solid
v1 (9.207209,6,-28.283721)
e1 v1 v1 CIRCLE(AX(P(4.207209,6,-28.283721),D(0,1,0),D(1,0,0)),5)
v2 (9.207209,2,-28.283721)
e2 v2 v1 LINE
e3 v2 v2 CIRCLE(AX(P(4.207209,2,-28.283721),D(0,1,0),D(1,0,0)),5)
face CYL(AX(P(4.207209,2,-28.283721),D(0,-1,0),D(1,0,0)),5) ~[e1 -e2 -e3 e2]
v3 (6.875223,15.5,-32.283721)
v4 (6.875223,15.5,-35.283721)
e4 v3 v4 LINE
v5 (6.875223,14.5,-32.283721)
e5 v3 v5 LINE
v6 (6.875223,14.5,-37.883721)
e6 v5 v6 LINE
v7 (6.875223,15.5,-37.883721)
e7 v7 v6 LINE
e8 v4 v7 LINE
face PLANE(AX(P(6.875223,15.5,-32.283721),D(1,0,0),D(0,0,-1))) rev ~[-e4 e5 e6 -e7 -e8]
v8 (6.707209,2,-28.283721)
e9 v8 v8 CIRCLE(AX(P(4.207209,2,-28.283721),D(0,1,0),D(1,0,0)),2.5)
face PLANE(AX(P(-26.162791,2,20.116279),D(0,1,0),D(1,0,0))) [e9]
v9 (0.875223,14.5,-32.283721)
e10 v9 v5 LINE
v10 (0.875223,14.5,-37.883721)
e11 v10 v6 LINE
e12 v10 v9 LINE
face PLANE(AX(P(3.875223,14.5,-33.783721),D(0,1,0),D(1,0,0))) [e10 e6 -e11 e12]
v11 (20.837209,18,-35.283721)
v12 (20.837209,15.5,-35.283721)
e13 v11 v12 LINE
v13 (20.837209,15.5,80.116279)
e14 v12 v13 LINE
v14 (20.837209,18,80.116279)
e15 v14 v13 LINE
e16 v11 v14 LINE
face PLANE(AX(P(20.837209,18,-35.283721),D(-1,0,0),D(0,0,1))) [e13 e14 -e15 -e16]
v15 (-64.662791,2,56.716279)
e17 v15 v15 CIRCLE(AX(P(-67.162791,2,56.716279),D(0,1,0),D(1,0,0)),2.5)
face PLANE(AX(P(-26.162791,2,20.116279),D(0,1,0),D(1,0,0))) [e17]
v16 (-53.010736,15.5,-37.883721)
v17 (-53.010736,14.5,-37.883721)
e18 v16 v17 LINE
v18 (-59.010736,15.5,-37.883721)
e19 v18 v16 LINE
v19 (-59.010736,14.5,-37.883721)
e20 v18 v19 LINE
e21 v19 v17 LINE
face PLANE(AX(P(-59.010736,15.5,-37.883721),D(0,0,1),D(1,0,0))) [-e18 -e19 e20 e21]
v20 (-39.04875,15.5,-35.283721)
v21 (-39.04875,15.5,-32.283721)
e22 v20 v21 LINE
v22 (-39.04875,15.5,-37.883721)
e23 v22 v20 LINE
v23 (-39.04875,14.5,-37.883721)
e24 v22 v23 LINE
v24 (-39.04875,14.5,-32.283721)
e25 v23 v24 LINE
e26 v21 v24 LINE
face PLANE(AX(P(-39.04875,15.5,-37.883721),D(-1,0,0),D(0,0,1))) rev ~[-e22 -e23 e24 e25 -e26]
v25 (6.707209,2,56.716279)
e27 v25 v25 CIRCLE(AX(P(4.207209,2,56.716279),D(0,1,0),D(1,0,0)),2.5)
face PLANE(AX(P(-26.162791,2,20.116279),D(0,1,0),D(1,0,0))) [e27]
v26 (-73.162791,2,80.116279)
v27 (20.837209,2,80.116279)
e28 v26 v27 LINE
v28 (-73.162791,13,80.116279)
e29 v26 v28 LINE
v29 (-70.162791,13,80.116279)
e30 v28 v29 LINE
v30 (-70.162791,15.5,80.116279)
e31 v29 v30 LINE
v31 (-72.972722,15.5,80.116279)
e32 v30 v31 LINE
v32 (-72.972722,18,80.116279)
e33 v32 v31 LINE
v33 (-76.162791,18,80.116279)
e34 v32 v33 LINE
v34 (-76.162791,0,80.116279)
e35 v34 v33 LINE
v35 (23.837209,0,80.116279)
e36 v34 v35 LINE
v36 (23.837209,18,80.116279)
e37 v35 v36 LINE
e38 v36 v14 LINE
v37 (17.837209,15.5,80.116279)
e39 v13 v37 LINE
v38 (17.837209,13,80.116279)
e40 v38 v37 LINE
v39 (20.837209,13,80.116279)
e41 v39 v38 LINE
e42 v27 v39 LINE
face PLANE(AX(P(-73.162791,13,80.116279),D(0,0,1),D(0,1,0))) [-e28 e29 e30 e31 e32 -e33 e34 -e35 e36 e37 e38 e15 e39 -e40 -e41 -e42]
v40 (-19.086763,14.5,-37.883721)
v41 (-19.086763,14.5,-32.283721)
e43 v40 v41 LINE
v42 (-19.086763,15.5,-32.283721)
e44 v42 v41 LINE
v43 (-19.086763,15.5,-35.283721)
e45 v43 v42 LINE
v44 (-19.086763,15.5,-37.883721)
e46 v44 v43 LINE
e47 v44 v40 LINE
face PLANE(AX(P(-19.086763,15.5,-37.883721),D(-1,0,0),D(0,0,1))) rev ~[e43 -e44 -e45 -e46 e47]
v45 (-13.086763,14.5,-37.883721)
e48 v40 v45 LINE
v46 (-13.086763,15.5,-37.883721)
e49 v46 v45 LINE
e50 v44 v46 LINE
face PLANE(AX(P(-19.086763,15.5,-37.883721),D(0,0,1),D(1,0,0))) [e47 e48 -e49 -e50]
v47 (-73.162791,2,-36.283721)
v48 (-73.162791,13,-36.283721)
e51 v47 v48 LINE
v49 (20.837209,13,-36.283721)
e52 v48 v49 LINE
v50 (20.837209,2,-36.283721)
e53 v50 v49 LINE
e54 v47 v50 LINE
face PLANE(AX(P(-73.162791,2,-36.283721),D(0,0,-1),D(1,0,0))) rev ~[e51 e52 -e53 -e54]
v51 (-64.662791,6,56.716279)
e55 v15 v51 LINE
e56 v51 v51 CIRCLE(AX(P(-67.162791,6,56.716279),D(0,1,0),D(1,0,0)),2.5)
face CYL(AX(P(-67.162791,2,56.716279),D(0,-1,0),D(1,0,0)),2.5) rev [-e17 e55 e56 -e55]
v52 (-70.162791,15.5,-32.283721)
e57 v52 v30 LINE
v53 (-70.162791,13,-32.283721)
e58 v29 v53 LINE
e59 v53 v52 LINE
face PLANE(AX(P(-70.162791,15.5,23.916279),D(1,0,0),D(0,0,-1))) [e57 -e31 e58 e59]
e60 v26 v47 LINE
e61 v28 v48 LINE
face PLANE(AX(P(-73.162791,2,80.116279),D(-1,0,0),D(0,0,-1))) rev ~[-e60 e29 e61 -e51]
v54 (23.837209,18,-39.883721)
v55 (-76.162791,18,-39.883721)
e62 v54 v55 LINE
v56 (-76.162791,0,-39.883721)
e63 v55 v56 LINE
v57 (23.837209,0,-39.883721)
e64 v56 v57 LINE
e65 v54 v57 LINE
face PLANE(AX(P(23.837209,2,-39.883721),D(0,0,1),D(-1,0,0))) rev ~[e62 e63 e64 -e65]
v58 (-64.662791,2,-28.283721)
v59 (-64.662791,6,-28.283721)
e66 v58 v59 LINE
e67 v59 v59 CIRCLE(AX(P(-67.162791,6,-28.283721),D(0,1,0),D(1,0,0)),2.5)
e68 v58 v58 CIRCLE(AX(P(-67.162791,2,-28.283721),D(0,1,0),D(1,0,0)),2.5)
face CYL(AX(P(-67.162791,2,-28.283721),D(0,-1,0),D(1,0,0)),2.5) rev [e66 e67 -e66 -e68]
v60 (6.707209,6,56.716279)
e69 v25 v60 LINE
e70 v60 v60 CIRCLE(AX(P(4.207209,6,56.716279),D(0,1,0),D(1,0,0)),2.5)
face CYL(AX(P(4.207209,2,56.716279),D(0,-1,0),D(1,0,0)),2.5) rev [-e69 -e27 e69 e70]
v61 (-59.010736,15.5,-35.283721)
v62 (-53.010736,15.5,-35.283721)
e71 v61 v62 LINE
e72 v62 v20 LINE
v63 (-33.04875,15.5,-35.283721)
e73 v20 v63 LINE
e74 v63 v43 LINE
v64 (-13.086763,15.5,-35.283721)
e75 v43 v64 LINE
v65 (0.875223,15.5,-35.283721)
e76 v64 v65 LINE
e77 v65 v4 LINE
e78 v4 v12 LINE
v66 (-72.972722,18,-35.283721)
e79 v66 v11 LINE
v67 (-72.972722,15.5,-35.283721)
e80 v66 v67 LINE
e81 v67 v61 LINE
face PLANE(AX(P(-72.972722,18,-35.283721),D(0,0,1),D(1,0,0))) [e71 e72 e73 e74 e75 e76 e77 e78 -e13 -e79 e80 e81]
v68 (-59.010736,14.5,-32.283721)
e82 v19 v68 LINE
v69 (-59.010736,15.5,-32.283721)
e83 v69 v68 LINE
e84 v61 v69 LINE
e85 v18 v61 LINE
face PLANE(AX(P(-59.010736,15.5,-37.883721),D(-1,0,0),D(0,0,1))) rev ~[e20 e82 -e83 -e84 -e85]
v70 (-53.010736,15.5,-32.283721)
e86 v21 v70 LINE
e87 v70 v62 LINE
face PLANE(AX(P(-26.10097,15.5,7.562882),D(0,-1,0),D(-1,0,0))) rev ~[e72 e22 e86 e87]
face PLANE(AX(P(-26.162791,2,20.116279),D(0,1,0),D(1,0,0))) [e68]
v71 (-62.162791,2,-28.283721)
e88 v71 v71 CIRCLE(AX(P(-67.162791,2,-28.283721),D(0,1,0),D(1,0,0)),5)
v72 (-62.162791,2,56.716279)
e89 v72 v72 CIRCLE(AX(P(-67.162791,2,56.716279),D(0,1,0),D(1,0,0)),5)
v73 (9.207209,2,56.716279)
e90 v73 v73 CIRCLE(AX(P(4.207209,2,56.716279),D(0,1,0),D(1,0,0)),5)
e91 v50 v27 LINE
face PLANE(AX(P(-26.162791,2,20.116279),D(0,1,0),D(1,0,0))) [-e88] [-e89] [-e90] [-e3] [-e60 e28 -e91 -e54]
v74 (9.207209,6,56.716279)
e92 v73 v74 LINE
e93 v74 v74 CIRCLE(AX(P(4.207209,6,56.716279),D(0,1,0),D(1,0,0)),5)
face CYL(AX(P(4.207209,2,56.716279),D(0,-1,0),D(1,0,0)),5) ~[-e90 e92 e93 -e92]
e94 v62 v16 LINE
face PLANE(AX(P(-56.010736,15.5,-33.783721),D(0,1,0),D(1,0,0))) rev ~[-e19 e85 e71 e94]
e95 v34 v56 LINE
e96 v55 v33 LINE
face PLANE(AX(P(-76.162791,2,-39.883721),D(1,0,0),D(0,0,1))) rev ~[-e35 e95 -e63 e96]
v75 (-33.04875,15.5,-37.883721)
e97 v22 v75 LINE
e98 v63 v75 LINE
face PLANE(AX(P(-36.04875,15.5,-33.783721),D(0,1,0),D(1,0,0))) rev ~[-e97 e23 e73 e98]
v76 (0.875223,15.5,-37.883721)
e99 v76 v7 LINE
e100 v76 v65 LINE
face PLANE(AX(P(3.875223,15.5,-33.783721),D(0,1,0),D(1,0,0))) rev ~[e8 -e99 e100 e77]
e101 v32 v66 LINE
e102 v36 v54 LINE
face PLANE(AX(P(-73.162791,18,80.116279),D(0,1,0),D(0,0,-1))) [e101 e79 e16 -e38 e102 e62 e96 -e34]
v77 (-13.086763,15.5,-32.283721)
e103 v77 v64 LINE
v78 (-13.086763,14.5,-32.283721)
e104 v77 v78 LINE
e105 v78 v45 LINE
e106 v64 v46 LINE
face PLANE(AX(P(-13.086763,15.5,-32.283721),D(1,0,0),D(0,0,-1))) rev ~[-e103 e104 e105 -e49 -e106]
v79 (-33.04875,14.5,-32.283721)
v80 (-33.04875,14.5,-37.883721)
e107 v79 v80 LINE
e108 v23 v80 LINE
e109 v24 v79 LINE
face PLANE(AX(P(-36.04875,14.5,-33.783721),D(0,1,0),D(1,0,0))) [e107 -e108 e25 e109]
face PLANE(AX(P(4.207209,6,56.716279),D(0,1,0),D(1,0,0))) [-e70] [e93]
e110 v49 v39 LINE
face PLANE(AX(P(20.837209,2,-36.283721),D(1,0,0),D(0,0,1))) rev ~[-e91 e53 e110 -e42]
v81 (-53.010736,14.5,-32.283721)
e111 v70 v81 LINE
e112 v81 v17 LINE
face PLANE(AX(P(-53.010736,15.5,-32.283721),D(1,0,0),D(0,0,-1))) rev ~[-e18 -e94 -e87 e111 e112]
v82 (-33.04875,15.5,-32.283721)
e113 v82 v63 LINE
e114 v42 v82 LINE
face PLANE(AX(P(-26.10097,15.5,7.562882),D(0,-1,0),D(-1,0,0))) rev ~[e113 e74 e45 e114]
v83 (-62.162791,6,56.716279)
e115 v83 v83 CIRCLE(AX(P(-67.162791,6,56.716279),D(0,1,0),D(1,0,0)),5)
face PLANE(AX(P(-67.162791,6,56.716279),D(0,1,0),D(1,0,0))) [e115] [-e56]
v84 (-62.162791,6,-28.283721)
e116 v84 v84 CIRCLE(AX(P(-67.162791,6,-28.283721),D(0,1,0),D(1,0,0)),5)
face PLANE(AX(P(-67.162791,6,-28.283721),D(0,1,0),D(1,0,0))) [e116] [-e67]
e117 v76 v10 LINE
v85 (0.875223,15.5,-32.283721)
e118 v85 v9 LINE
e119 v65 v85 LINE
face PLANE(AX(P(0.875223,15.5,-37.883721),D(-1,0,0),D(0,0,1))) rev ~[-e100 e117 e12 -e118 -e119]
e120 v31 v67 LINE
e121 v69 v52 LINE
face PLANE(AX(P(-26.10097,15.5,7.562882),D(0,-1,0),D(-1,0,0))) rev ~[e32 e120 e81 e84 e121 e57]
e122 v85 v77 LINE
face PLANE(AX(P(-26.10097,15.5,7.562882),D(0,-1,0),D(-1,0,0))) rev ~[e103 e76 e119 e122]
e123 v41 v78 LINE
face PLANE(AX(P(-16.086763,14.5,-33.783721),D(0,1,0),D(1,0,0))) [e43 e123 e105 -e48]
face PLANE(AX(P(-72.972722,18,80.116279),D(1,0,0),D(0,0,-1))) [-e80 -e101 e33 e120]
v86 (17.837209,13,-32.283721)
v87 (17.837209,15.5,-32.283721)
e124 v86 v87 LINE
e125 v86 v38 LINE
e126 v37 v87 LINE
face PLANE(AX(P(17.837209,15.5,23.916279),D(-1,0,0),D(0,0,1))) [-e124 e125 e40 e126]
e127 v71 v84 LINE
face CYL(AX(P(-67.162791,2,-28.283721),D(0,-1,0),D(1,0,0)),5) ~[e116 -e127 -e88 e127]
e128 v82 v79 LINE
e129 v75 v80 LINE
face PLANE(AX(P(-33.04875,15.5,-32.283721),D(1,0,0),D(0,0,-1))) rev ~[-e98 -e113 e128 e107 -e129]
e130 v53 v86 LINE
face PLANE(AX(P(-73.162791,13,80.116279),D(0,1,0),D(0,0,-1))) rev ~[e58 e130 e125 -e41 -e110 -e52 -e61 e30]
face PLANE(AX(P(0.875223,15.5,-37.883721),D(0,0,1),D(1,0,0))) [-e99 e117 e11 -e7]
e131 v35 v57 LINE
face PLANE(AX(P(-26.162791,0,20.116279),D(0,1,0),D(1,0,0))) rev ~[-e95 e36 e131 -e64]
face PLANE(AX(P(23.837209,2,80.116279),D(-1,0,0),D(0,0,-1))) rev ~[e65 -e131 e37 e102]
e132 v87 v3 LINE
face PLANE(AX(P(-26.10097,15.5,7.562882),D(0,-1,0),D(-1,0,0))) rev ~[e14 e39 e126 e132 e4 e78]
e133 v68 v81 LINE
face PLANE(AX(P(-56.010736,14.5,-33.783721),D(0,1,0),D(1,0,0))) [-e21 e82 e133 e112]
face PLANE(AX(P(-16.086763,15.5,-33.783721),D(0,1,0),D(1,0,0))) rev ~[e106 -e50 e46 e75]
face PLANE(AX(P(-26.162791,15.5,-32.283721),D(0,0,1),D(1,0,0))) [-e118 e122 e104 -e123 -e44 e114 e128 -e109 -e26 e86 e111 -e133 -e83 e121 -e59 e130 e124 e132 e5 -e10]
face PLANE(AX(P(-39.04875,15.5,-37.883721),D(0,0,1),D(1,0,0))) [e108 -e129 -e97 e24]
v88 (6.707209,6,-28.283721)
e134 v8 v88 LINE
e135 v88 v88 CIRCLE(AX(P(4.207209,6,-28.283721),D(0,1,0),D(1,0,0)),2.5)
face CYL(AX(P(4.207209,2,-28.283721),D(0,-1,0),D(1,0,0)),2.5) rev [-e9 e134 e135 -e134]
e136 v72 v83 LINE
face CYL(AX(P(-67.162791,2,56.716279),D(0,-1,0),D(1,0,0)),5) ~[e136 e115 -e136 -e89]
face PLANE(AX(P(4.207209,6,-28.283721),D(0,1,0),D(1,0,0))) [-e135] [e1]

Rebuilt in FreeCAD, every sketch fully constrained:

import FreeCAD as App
import Part
import Sketcher
Q = App.Units.Quantity


def add_polygon(sketch, points):
    """Adds a closed chain of lines whose ends are joined by coincident constraints."""
    first, n = sketch.GeometryCount, len(points)
    for a, b in zip(points, points[1:] + points[:1]):
        sketch.addGeometry(Part.LineSegment(App.Vector(*a, 0), App.Vector(*b, 0)), False)
    for i in range(n):
        sketch.addConstraint(Sketcher.Constraint("Coincident", first + i, 2, first + (i + 1) % n, 1))

doc = App.newDocument("Part")
body = doc.addObject("PartDesign::Body", "Body")

# Sketch on XZ plane
sketch1 = body.newObject("Sketcher::SketchObject", "Sketch")
sketch1.AttachmentSupport = (doc.getObject("XZ_Plane"), [""])
sketch1.MapMode = "FlatFace"
add_polygon(sketch1, [(-76, -40), (-76, 80), (24, 80), (24, -40)])  # lines 0-3
sketch1.addConstraint([
    Sketcher.Constraint("Vertical", 0),
    Sketcher.Constraint("Horizontal", 1),
    Sketcher.Constraint("Vertical", 2),
    Sketcher.Constraint("Horizontal", 3),
    Sketcher.Constraint("DistanceX", 1, 1, 1, 2, Q("100 mm")),
    Sketcher.Constraint("DistanceY", 0, 1, 0, 2, Q("120 mm")),
    Sketcher.Constraint("DistanceX", 0, 2, -1, 1, Q("76.162791 mm")),
    Sketcher.Constraint("DistanceY", -1, 1, 0, 2, Q("80.116279 mm")),
])
pad1 = body.newObject("PartDesign::Pad", "Pad")
pad1.Profile = sketch1
pad1.Length = 2
pad1.Reversed = True

# Sketch on XZ plane
sketch2 = body.newObject("Sketcher::SketchObject", "Sketch001")
sketch2.AttachmentSupport = (doc.getObject("XZ_Plane"), [""])
sketch2.MapMode = "FlatFace"
sketch2.AttachmentOffset = App.Placement(App.Vector(0, 0, -2), App.Rotation())
sketch2.addGeometry([
    Part.Circle(App.Vector(-67.2, -28.3, 0), App.Vector(0, 0, 1), 5),  # 0
    Part.Circle(App.Vector(-67.2, -28.3, 0), App.Vector(0, 0, 1), 2.5),  # 1
    Part.Circle(App.Vector(4.2, -28.3, 0), App.Vector(0, 0, 1), 5),  # 2
    Part.Circle(App.Vector(4.2, -28.3, 0), App.Vector(0, 0, 1), 2.5),  # 3
    Part.Circle(App.Vector(4.2, 56.7, 0), App.Vector(0, 0, 1), 5),  # 4
    Part.Circle(App.Vector(4.2, 56.7, 0), App.Vector(0, 0, 1), 2.5),  # 5
    Part.Circle(App.Vector(-67.2, 56.7, 0), App.Vector(0, 0, 1), 5),  # 6
    Part.Circle(App.Vector(-67.2, 56.7, 0), App.Vector(0, 0, 1), 2.5),  # 7
], False)
sketch2.addConstraint([
    Sketcher.Constraint("Coincident", 1, 3, 0, 3),
    Sketcher.Constraint("Coincident", 3, 3, 2, 3),
    Sketcher.Constraint("Coincident", 5, 3, 4, 3),
    Sketcher.Constraint("Coincident", 7, 3, 6, 3),
    Sketcher.Constraint("Equal", 0, 2),
    Sketcher.Constraint("Equal", 1, 3),
    Sketcher.Constraint("Equal", 2, 4),
    Sketcher.Constraint("Equal", 3, 5),
    Sketcher.Constraint("Equal", 4, 6),
    Sketcher.Constraint("Equal", 5, 7),
    Sketcher.Constraint("Horizontal", 1, 3, 2, 3),
    Sketcher.Constraint("Horizontal", 5, 3, 6, 3),
    Sketcher.Constraint("Vertical", 3, 3, 4, 3),
    Sketcher.Constraint("Vertical", 1, 3, 6, 3),
    Sketcher.Constraint("Diameter", 0, Q("10 mm")),
    Sketcher.Constraint("Diameter", 1, Q("5 mm")),
    Sketcher.Constraint("DistanceY", 2, 3, 4, 3, Q("85 mm")),
    Sketcher.Constraint("DistanceX", 0, 3, 2, 3, Q("71.37 mm")),
    Sketcher.Constraint("DistanceX", 0, 3, -1, 1, Q("67.162791 mm")),
    Sketcher.Constraint("DistanceY", 0, 3, -1, 1, Q("28.283721 mm")),
])
pad2 = body.newObject("PartDesign::Pad", "Pad001")
pad2.Profile = sketch2
pad2.Length = 4
pad2.Reversed = True

# Sketch on XZ plane
sketch3 = body.newObject("Sketcher::SketchObject", "Sketch002")
sketch3.AttachmentSupport = (doc.getObject("XZ_Plane"), [""])
sketch3.MapMode = "FlatFace"
sketch3.AttachmentOffset = App.Placement(App.Vector(0, 0, -2), App.Rotation())
add_polygon(sketch3, [(-76.2, -39.9), (-76.2, 80.1), (-73.2, 80.1), (-73.2, -36.3), (20.8, -36.3), (20.8, 80.1), (23.8, 80.1), (23.8, -39.9)])  # lines 0-7
sketch3.addConstraint([
    Sketcher.Constraint("Vertical", 0),
    Sketcher.Constraint("Horizontal", 1),
    Sketcher.Constraint("Vertical", 2),
    Sketcher.Constraint("Horizontal", 3),
    Sketcher.Constraint("Vertical", 4),
    Sketcher.Constraint("Horizontal", 5),
    Sketcher.Constraint("Vertical", 6),
    Sketcher.Constraint("Horizontal", 7),
    Sketcher.Constraint("Horizontal", 1, 2, 4, 2),
    Sketcher.Constraint("Equal", 1, 5),
    Sketcher.Constraint("DistanceX", 1, 1, 1, 2, Q("3 mm")),
    Sketcher.Constraint("DistanceX", 3, 1, 3, 2, Q("94 mm")),
    Sketcher.Constraint("DistanceY", 0, 1, 0, 2, Q("120 mm")),
    Sketcher.Constraint("DistanceY", 2, 2, 2, 1, Q("116.4 mm")),
    Sketcher.Constraint("DistanceX", 0, 2, -1, 1, Q("76.162791 mm")),
    Sketcher.Constraint("DistanceY", -1, 1, 0, 2, Q("80.116279 mm")),
])
pad3 = body.newObject("PartDesign::Pad", "Pad002")
pad3.Profile = sketch3
pad3.Length = 16
pad3.Reversed = True

# Sketch on XY plane
sketch4 = body.newObject("Sketcher::SketchObject", "Sketch003")
sketch4.AttachmentSupport = (doc.getObject("XY_Plane"), [""])
sketch4.MapMode = "FlatFace"
sketch4.AttachmentOffset = App.Placement(App.Vector(0, 0, -36.283721), App.Rotation())
add_polygon(sketch4, [(-73, 18), (-73, 13), (21, 13), (21, 18)])  # lines 0-3
sketch4.addConstraint([
    Sketcher.Constraint("Vertical", 0),
    Sketcher.Constraint("Horizontal", 1),
    Sketcher.Constraint("Vertical", 2),
    Sketcher.Constraint("Horizontal", 3),
    Sketcher.Constraint("DistanceX", 1, 1, 1, 2, Q("94 mm")),
    Sketcher.Constraint("DistanceY", 0, 2, 0, 1, Q("5 mm")),
    Sketcher.Constraint("DistanceY", -1, 1, 0, 2, Q("13 mm")),
    Sketcher.Constraint("DistanceX", 0, 2, -1, 1, Q("73.162791 mm")),
])
pad4 = body.newObject("PartDesign::Pad", "Pad003")
pad4.Profile = sketch4
pad4.Length = 4

# Sketch on YZ plane
sketch5 = body.newObject("Sketcher::SketchObject", "Sketch004")
sketch5.AttachmentSupport = (doc.getObject("YZ_Plane"), [""])
sketch5.MapMode = "FlatFace"
sketch5.AttachmentOffset = App.Placement(App.Vector(0, 0, 20.837209), App.Rotation())
add_polygon(sketch5, [(18, -32), (13, -32), (13, 80), (18, 80)])  # lines 0-3
sketch5.addConstraint([
    Sketcher.Constraint("Horizontal", 0),
    Sketcher.Constraint("Vertical", 1),
    Sketcher.Constraint("Horizontal", 2),
    Sketcher.Constraint("Vertical", 3),
    Sketcher.Constraint("DistanceX", 0, 2, 0, 1, Q("5 mm")),
    Sketcher.Constraint("DistanceY", 1, 1, 1, 2, Q("112.4 mm")),
    Sketcher.Constraint("DistanceX", -1, 1, 0, 2, Q("13 mm")),
    Sketcher.Constraint("DistanceY", 0, 2, -1, 1, Q("32.283721 mm")),
])
pad5 = body.newObject("PartDesign::Pad", "Pad004")
pad5.Profile = sketch5
pad5.Length = 3
pad5.Reversed = True

# Sketch on YZ plane
sketch6 = body.newObject("Sketcher::SketchObject", "Sketch005")
sketch6.AttachmentSupport = (doc.getObject("YZ_Plane"), [""])
sketch6.MapMode = "FlatFace"
sketch6.AttachmentOffset = App.Placement(App.Vector(0, 0, -73.162791), App.Rotation())
add_polygon(sketch6, [(18, 80), (13, 80), (13, -32), (18, -32)])  # lines 0-3
sketch6.addConstraint([
    Sketcher.Constraint("Horizontal", 0),
    Sketcher.Constraint("Vertical", 1),
    Sketcher.Constraint("Horizontal", 2),
    Sketcher.Constraint("Vertical", 3),
    Sketcher.Constraint("DistanceX", 0, 2, 0, 1, Q("5 mm")),
    Sketcher.Constraint("DistanceY", 1, 2, 1, 1, Q("112.4 mm")),
    Sketcher.Constraint("DistanceX", -1, 1, 0, 2, Q("13 mm")),
    Sketcher.Constraint("DistanceY", -1, 1, 0, 2, Q("80.116279 mm")),
])
pad6 = body.newObject("PartDesign::Pad", "Pad005")
pad6.Profile = sketch6
pad6.Length = 3

# Sketch on XZ plane
sketch7 = body.newObject("Sketcher::SketchObject", "Sketch006")
sketch7.AttachmentSupport = (doc.getObject("XZ_Plane"), [""])
sketch7.MapMode = "FlatFace"
sketch7.AttachmentOffset = App.Placement(App.Vector(0, 0, -18), App.Rotation())
add_polygon(sketch7, [(-73, 80.1), (-70.2, 80.1), (-70.2, -32.3), (17.8, -32.3), (17.8, 80.1), (20.8, 80.1), (20.8, -35.3), (-73, -35.3)])  # lines 0-7
sketch7.addConstraint([
    Sketcher.Constraint("Horizontal", 0),
    Sketcher.Constraint("Vertical", 1),
    Sketcher.Constraint("Horizontal", 2),
    Sketcher.Constraint("Vertical", 3),
    Sketcher.Constraint("Horizontal", 4),
    Sketcher.Constraint("Vertical", 5),
    Sketcher.Constraint("Horizontal", 6),
    Sketcher.Constraint("Vertical", 7),
    Sketcher.Constraint("Horizontal", 0, 2, 3, 2),
    Sketcher.Constraint("DistanceX", 2, 1, 2, 2, Q("88 mm")),
    Sketcher.Constraint("DistanceX", 4, 1, 4, 2, Q("3 mm")),
    Sketcher.Constraint("DistanceY", 1, 2, 1, 1, Q("112.4 mm")),
    Sketcher.Constraint("DistanceY", 5, 2, 5, 1, Q("115.4 mm")),
    Sketcher.Constraint("DistanceX", 0, 1, 0, 2, Q("2.809932 mm")),
    Sketcher.Constraint("DistanceX", 0, 2, -1, 1, Q("70.162791 mm")),
    Sketcher.Constraint("DistanceY", -1, 1, 0, 2, Q("80.116279 mm")),
])
pocket1 = body.newObject("PartDesign::Pocket", "Pocket")
pocket1.Profile = sketch7
pocket1.Length = 2.5
pocket1.Reversed = True

# Sketch on XZ plane
sketch8 = body.newObject("Sketcher::SketchObject", "Sketch007")
sketch8.AttachmentSupport = (doc.getObject("XZ_Plane"), [""])
sketch8.MapMode = "FlatFace"
sketch8.AttachmentOffset = App.Placement(App.Vector(0, 0, -15.5), App.Rotation())
add_polygon(sketch8, [(-59, -32), (-53, -32), (-53, -38), (-59, -38)])  # lines 0-3
add_polygon(sketch8, [(-39, -32), (-33, -32), (-33, -38), (-39, -38)])  # lines 4-7
add_polygon(sketch8, [(-19, -32), (-13, -32), (-13, -38), (-19, -38)])  # lines 8-11
add_polygon(sketch8, [(1, -32), (7, -32), (7, -38), (1, -38)])  # lines 12-15
sketch8.addConstraint([
    Sketcher.Constraint("Horizontal", 0),
    Sketcher.Constraint("Vertical", 1),
    Sketcher.Constraint("Horizontal", 2),
    Sketcher.Constraint("Vertical", 3),
    Sketcher.Constraint("Horizontal", 4),
    Sketcher.Constraint("Vertical", 5),
    Sketcher.Constraint("Horizontal", 6),
    Sketcher.Constraint("Vertical", 7),
    Sketcher.Constraint("Horizontal", 8),
    Sketcher.Constraint("Vertical", 9),
    Sketcher.Constraint("Horizontal", 10),
    Sketcher.Constraint("Vertical", 11),
    Sketcher.Constraint("Horizontal", 12),
    Sketcher.Constraint("Vertical", 13),
    Sketcher.Constraint("Horizontal", 14),
    Sketcher.Constraint("Vertical", 15),
    Sketcher.Constraint("Horizontal", 3, 2, 4, 2),
    Sketcher.Constraint("Horizontal", 2, 2, 5, 2),
    Sketcher.Constraint("Horizontal", 7, 2, 8, 2),
    Sketcher.Constraint("Horizontal", 6, 2, 9, 2),
    Sketcher.Constraint("Horizontal", 11, 2, 12, 2),
    Sketcher.Constraint("Horizontal", 10, 2, 13, 2),
    Sketcher.Constraint("Equal", 2, 4),
    Sketcher.Constraint("Equal", 6, 8),
    Sketcher.Constraint("Equal", 10, 12),
    Sketcher.Constraint("DistanceX", 0, 1, 0, 2, Q("6 mm")),
    Sketcher.Constraint("DistanceY", 1, 2, 1, 1, Q("5.6 mm")),
    Sketcher.Constraint("DistanceY", 0, 2, -1, 1, Q("32.283721 mm")),
    Sketcher.Constraint("DistanceX", 4, 2, -1, 1, Q("33.04875 mm")),
    Sketcher.Constraint("DistanceX", 0, 2, -1, 1, Q("53.010736 mm")),
    Sketcher.Constraint("DistanceX", 8, 2, -1, 1, Q("13.086763 mm")),
    Sketcher.Constraint("DistanceX", -1, 1, 12, 2, Q("6.875223 mm")),
])
pocket2 = body.newObject("PartDesign::Pocket", "Pocket001")
pocket2.Profile = sketch8
pocket2.Length = 1
pocket2.Reversed = True

doc.recompute()
